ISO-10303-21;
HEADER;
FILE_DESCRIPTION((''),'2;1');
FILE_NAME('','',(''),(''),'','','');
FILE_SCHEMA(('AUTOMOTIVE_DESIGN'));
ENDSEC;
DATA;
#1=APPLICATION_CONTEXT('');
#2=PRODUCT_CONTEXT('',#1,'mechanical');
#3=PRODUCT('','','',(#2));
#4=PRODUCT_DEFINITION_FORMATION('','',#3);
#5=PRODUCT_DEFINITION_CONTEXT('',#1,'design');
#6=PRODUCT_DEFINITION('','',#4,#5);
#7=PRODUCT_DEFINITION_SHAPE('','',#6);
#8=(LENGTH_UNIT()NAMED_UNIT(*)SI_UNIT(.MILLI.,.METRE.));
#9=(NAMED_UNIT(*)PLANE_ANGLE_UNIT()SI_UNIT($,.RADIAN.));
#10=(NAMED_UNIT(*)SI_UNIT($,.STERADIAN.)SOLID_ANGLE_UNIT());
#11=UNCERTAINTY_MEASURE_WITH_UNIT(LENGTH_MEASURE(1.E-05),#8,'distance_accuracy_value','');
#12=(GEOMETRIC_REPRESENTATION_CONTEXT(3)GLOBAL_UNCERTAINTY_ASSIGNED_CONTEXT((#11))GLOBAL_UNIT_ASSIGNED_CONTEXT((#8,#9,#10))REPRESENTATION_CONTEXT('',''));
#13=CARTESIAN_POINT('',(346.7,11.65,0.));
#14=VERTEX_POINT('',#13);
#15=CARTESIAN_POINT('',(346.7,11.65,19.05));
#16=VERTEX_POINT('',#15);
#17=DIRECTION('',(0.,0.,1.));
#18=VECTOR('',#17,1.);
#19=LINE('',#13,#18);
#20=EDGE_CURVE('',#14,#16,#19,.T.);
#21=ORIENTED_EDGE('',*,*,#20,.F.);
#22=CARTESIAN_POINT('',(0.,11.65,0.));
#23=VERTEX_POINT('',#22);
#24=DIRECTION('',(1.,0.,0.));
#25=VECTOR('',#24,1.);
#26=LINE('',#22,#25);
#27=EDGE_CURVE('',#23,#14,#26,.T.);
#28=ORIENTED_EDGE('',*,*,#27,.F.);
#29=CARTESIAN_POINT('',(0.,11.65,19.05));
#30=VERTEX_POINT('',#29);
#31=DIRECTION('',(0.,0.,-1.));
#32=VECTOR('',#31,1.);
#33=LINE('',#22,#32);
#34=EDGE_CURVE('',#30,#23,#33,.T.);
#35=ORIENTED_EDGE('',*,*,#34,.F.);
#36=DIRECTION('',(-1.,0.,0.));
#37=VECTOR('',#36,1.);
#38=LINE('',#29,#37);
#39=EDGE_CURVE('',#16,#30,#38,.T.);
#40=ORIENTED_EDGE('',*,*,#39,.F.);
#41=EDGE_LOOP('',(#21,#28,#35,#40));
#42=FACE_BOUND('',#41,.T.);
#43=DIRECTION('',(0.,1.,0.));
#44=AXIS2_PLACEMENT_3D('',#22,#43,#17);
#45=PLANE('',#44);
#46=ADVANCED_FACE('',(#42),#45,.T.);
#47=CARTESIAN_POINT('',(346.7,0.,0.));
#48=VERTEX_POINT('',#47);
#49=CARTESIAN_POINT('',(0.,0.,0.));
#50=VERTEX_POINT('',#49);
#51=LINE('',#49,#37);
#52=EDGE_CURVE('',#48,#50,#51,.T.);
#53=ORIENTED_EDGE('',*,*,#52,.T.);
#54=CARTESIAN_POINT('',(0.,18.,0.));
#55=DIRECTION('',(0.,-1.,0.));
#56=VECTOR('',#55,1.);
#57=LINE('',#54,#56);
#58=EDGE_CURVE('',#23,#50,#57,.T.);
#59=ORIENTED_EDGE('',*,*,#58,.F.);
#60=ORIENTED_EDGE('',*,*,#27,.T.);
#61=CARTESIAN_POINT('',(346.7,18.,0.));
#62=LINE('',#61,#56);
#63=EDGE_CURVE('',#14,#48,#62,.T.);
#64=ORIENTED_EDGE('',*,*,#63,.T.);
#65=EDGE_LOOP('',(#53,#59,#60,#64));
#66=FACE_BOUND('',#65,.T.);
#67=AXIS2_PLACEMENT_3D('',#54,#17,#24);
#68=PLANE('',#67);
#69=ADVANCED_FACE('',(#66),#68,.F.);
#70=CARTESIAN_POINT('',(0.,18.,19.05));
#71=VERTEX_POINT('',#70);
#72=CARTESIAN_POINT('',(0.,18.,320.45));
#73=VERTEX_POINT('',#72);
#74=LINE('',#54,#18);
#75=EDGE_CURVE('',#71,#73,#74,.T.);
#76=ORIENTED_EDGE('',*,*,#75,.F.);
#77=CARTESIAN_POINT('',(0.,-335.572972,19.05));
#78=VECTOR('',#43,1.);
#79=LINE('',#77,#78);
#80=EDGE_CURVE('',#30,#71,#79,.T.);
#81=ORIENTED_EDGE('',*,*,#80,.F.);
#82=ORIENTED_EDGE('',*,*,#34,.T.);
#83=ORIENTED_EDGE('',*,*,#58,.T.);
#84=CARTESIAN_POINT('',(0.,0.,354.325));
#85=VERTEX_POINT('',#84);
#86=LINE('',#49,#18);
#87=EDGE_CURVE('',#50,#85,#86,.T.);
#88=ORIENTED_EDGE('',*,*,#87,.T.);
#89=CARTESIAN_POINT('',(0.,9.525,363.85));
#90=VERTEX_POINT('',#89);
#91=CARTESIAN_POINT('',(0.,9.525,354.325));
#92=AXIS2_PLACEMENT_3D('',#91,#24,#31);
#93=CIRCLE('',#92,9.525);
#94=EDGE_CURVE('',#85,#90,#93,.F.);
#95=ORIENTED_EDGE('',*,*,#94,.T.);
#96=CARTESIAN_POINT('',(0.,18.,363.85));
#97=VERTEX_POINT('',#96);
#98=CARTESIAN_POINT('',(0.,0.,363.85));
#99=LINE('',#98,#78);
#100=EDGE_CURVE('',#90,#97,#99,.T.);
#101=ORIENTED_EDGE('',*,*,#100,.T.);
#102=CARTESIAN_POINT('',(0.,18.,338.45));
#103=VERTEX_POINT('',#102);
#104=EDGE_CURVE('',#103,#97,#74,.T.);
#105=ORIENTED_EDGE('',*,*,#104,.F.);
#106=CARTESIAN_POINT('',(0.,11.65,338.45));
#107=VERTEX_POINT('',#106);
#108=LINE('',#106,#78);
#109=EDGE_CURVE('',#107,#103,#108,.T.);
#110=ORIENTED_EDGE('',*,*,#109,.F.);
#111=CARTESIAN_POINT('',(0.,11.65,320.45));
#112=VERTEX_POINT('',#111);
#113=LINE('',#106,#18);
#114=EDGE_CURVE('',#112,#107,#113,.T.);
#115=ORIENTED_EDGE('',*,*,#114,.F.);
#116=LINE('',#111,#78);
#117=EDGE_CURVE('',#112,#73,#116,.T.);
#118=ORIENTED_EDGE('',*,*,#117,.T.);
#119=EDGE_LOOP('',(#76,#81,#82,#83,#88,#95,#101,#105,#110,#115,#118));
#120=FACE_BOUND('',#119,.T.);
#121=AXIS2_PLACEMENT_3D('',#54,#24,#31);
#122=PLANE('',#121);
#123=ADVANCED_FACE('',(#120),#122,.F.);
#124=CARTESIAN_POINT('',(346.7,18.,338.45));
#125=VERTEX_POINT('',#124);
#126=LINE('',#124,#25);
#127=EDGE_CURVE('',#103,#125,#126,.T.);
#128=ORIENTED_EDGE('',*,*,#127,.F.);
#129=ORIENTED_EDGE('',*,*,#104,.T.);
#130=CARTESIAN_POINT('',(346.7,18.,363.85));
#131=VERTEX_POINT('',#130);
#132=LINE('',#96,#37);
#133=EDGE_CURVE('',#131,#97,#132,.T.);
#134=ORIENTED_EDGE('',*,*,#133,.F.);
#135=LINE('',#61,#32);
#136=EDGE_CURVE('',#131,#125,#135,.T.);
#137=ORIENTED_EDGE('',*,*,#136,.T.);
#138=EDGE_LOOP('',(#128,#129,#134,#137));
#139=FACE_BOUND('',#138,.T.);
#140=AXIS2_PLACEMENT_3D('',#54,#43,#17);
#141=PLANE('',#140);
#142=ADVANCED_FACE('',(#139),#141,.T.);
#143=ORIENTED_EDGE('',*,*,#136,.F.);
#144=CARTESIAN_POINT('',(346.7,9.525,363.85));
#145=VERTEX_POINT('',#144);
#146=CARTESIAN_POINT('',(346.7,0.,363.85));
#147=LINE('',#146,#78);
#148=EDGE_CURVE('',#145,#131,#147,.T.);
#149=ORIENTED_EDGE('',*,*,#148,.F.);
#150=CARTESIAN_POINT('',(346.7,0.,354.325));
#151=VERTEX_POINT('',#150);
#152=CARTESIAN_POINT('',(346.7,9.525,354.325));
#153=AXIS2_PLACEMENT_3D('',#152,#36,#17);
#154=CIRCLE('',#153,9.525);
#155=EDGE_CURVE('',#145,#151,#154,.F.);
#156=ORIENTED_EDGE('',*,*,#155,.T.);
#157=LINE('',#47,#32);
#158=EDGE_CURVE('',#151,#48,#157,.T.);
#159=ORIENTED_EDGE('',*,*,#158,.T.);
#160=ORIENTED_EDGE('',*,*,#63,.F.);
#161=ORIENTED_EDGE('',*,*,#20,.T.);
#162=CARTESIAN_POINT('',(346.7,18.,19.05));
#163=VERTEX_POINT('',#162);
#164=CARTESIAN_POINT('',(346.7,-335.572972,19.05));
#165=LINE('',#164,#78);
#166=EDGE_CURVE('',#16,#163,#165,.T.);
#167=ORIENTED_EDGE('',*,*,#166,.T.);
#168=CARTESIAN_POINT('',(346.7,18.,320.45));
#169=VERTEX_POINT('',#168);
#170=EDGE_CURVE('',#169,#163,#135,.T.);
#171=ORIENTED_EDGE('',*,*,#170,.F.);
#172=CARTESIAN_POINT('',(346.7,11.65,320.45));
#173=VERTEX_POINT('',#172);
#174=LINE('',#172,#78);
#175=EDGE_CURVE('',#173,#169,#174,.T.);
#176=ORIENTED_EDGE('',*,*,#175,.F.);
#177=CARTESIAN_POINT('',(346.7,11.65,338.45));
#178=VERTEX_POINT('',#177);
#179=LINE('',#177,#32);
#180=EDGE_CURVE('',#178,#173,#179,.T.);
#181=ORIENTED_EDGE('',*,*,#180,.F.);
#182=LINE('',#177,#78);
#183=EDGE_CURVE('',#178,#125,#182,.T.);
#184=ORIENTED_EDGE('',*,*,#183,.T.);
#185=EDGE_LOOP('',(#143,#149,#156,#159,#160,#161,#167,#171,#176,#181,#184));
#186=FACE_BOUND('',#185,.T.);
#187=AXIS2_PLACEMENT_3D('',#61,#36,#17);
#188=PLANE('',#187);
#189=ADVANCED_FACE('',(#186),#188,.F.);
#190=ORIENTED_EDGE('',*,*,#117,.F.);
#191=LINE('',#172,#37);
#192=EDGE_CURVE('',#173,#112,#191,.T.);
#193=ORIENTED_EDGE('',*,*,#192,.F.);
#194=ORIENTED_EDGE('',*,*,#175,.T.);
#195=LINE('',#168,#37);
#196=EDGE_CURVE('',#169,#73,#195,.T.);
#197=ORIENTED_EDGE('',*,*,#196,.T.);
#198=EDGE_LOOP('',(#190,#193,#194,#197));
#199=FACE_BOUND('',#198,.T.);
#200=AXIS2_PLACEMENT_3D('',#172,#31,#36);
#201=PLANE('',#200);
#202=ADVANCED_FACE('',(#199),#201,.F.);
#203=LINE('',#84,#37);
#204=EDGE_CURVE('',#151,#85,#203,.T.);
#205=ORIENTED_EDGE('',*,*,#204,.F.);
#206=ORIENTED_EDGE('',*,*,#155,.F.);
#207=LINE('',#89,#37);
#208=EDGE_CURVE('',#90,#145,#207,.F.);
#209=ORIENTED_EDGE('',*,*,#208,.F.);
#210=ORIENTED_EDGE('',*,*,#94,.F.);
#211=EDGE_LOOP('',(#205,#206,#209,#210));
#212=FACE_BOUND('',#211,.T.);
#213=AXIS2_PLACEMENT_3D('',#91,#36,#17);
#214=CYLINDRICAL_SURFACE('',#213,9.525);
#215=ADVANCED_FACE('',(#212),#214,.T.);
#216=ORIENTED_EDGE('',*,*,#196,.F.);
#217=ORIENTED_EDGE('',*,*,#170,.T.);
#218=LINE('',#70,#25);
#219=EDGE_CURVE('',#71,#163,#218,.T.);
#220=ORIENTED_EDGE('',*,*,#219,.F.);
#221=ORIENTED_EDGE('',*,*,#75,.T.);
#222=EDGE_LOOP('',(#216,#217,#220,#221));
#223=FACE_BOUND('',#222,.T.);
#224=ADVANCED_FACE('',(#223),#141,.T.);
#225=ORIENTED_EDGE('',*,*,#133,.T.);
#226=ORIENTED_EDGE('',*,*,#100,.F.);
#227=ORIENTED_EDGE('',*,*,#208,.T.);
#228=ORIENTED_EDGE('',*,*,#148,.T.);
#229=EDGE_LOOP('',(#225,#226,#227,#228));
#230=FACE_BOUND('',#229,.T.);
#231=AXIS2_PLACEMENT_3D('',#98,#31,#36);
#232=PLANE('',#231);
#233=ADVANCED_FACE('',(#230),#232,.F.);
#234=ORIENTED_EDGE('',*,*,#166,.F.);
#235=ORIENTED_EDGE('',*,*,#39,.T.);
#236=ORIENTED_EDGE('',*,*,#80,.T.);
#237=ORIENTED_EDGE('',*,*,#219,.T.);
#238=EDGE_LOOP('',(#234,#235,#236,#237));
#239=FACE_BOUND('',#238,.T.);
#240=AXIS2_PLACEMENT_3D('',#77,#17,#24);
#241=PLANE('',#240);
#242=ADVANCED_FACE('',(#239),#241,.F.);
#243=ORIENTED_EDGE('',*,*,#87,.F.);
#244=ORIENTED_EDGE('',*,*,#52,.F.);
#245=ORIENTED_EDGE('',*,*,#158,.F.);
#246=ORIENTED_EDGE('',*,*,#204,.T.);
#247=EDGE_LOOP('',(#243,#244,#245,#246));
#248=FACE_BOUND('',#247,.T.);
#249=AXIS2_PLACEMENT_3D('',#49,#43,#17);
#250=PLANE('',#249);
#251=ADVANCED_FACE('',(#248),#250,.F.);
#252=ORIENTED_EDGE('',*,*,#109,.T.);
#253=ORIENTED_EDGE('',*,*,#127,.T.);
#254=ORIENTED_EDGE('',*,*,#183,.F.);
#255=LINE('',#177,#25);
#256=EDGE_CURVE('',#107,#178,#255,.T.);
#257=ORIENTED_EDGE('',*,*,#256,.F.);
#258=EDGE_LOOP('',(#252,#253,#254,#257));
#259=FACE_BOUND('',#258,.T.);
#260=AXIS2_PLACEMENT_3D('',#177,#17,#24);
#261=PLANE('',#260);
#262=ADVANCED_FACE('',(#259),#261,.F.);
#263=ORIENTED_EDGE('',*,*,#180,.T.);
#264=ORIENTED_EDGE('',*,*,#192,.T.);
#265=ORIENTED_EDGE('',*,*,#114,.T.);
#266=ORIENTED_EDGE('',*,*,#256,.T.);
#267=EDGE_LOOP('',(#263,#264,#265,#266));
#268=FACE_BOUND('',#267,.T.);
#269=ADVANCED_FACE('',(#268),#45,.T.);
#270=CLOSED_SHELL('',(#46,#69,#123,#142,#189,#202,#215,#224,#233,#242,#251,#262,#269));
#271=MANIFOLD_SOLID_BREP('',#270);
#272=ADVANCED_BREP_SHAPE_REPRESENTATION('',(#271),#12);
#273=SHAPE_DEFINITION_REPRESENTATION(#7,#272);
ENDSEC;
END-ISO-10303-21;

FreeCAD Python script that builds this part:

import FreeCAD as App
import Part
import Sketcher
from FreeCAD import Vector
Q = App.Units.Quantity


def edges_at(feature, points):
    """Names of the edges that pass closest to the given points."""
    edges = feature.Shape.Edges
    near = lambda p: min(range(len(edges)), key=lambda i: edges[i].distToShape(Part.Vertex(*p))[0])
    return sorted({f"Edge{near(p) + 1}" for p in points})


def add_polygon(sketch, points):
    """Adds a closed chain of lines whose ends are joined by coincident constraints."""
    first, n = sketch.GeometryCount, len(points)
    for a, b in zip(points, points[1:] + points[:1]):
        sketch.addGeometry(Part.LineSegment(App.Vector(*a, 0), App.Vector(*b, 0)), False)
    for i in range(n):
        sketch.addConstraint(Sketcher.Constraint("Coincident", first + i, 2, first + (i + 1) % n, 1))

doc = App.newDocument("Part")
body = doc.addObject("PartDesign::Body", "Body")

sketch1 = body.newObject("Sketcher::SketchObject", "Sketch")
sketch1.AttachmentSupport = (doc.getObject("XZ_Plane"), [""])
sketch1.MapMode = "FlatFace"
add_polygon(sketch1, [(0, 0), (0, 377), (347, 377), (347, 0)])
sketch1.addConstraint([
    Sketcher.Constraint("Vertical", 0),
    Sketcher.Constraint("Horizontal", 1),
    Sketcher.Constraint("Vertical", 2),
    Sketcher.Constraint("Horizontal", 3),
    Sketcher.Constraint("Coincident", 3, 2, -1, 1),
    Sketcher.Constraint("DistanceX", 1, 1, 1, 2, Q("346.7 mm")),
    Sketcher.Constraint("DistanceY", 0, 1, 0, 2, Q("376.55 mm")),
])
pad1 = body.newObject("PartDesign::Pad", "Pad")
pad1.Profile = sketch1
pad1.Length = 18
pad1.Reversed = True

sketch2 = body.newObject("Sketcher::SketchObject", "Sketch001")
sketch2.AttachmentSupport = (doc.getObject("XZ_Plane"), [""])
sketch2.MapMode = "FlatFace"
sketch2.AttachmentOffset = App.Placement(Vector(0, 0, -18), App.Rotation())
add_polygon(sketch2, [(0, 320), (0, 338), (347, 338), (347, 320)])
sketch2.addConstraint([
    Sketcher.Constraint("Vertical", 0),
    Sketcher.Constraint("Horizontal", 1),
    Sketcher.Constraint("Vertical", 2),
    Sketcher.Constraint("Horizontal", 3),
    Sketcher.Constraint("PointOnObject", 0, 2, -2),
    Sketcher.Constraint("DistanceX", 1, 1, 1, 2, Q("346.7 mm")),
    Sketcher.Constraint("DistanceY", 0, 1, 0, 2, Q("18 mm")),
    Sketcher.Constraint("DistanceY", -1, 1, 0, 2, Q("338.45 mm")),
])
pocket1 = body.newObject("PartDesign::Pocket", "Pocket")
pocket1.Profile = sketch2
pocket1.Length = Q("0.25 in")
pocket1.Reversed = True
doc.recompute()

fillet = body.newObject("PartDesign::Fillet", "Fillet")
fillet.Base = (pocket1, edges_at(pocket1, [(173.35, 0, 376.55)]))
fillet.Radius = Q("0.375 in")

sketch3 = body.newObject("Sketcher::SketchObject", "Sketch002")
sketch3.AttachmentSupport = (doc.getObject("XZ_Plane"), [""])
sketch3.MapMode = "FlatFace"
sketch3.AttachmentOffset = App.Placement(Vector(0, 0, -18), App.Rotation())
add_polygon(sketch3, [(0, 0), (0, 19), (347, 19), (347, 0)])
sketch3.addConstraint([
    Sketcher.Constraint("Vertical", 0),
    Sketcher.Constraint("Horizontal", 1),
    Sketcher.Constraint("Vertical", 2),
    Sketcher.Constraint("Horizontal", 3),
    Sketcher.Constraint("Coincident", 3, 2, -1, 1),
    Sketcher.Constraint("DistanceY", 0, 1, 0, 2, Q("0.75 in")),
    Sketcher.Constraint("DistanceX", 1, 1, 1, 2, Q("346.7 mm")),
])
pocket2 = body.newObject("PartDesign::Pocket", "Pocket001")
pocket2.Profile = sketch3
pocket2.Length = Q("0.25 in")
pocket2.Reversed = True

sketch4 = body.newObject("Sketcher::SketchObject", "Sketch003")
sketch4.AttachmentSupport = (doc.getObject("XZ_Plane"), [""])
sketch4.MapMode = "FlatFace"
sketch4.AttachmentOffset = App.Placement(Vector(0, 0, -18), App.Rotation())
add_polygon(sketch4, [(0, 364), (0, 377), (347, 377), (347, 364)])
sketch4.addConstraint([
    Sketcher.Constraint("Vertical", 0),
    Sketcher.Constraint("Horizontal", 1),
    Sketcher.Constraint("Vertical", 2),
    Sketcher.Constraint("Horizontal", 3),
    Sketcher.Constraint("PointOnObject", 0, 2, -2),
    Sketcher.Constraint("DistanceY", 0, 1, 0, 2, Q("0.5 in")),
    Sketcher.Constraint("DistanceX", 1, 1, 1, 2, Q("346.7 mm")),
    Sketcher.Constraint("DistanceY", -1, 1, 0, 2, Q("376.55 mm")),
])
pocket3 = body.newObject("PartDesign::Pocket", "Pocket002")
pocket3.Profile = sketch4
pocket3.Type = "ThroughAll"
pocket3.Reversed = True
doc.recompute()

fillet2 = body.newObject("PartDesign::Fillet", "Fillet001")
fillet2.Base = (pocket3, edges_at(pocket3, [(173.35, 0, 363.85)]))
fillet2.Radius = Q("0.375 in")

doc.recompute()
